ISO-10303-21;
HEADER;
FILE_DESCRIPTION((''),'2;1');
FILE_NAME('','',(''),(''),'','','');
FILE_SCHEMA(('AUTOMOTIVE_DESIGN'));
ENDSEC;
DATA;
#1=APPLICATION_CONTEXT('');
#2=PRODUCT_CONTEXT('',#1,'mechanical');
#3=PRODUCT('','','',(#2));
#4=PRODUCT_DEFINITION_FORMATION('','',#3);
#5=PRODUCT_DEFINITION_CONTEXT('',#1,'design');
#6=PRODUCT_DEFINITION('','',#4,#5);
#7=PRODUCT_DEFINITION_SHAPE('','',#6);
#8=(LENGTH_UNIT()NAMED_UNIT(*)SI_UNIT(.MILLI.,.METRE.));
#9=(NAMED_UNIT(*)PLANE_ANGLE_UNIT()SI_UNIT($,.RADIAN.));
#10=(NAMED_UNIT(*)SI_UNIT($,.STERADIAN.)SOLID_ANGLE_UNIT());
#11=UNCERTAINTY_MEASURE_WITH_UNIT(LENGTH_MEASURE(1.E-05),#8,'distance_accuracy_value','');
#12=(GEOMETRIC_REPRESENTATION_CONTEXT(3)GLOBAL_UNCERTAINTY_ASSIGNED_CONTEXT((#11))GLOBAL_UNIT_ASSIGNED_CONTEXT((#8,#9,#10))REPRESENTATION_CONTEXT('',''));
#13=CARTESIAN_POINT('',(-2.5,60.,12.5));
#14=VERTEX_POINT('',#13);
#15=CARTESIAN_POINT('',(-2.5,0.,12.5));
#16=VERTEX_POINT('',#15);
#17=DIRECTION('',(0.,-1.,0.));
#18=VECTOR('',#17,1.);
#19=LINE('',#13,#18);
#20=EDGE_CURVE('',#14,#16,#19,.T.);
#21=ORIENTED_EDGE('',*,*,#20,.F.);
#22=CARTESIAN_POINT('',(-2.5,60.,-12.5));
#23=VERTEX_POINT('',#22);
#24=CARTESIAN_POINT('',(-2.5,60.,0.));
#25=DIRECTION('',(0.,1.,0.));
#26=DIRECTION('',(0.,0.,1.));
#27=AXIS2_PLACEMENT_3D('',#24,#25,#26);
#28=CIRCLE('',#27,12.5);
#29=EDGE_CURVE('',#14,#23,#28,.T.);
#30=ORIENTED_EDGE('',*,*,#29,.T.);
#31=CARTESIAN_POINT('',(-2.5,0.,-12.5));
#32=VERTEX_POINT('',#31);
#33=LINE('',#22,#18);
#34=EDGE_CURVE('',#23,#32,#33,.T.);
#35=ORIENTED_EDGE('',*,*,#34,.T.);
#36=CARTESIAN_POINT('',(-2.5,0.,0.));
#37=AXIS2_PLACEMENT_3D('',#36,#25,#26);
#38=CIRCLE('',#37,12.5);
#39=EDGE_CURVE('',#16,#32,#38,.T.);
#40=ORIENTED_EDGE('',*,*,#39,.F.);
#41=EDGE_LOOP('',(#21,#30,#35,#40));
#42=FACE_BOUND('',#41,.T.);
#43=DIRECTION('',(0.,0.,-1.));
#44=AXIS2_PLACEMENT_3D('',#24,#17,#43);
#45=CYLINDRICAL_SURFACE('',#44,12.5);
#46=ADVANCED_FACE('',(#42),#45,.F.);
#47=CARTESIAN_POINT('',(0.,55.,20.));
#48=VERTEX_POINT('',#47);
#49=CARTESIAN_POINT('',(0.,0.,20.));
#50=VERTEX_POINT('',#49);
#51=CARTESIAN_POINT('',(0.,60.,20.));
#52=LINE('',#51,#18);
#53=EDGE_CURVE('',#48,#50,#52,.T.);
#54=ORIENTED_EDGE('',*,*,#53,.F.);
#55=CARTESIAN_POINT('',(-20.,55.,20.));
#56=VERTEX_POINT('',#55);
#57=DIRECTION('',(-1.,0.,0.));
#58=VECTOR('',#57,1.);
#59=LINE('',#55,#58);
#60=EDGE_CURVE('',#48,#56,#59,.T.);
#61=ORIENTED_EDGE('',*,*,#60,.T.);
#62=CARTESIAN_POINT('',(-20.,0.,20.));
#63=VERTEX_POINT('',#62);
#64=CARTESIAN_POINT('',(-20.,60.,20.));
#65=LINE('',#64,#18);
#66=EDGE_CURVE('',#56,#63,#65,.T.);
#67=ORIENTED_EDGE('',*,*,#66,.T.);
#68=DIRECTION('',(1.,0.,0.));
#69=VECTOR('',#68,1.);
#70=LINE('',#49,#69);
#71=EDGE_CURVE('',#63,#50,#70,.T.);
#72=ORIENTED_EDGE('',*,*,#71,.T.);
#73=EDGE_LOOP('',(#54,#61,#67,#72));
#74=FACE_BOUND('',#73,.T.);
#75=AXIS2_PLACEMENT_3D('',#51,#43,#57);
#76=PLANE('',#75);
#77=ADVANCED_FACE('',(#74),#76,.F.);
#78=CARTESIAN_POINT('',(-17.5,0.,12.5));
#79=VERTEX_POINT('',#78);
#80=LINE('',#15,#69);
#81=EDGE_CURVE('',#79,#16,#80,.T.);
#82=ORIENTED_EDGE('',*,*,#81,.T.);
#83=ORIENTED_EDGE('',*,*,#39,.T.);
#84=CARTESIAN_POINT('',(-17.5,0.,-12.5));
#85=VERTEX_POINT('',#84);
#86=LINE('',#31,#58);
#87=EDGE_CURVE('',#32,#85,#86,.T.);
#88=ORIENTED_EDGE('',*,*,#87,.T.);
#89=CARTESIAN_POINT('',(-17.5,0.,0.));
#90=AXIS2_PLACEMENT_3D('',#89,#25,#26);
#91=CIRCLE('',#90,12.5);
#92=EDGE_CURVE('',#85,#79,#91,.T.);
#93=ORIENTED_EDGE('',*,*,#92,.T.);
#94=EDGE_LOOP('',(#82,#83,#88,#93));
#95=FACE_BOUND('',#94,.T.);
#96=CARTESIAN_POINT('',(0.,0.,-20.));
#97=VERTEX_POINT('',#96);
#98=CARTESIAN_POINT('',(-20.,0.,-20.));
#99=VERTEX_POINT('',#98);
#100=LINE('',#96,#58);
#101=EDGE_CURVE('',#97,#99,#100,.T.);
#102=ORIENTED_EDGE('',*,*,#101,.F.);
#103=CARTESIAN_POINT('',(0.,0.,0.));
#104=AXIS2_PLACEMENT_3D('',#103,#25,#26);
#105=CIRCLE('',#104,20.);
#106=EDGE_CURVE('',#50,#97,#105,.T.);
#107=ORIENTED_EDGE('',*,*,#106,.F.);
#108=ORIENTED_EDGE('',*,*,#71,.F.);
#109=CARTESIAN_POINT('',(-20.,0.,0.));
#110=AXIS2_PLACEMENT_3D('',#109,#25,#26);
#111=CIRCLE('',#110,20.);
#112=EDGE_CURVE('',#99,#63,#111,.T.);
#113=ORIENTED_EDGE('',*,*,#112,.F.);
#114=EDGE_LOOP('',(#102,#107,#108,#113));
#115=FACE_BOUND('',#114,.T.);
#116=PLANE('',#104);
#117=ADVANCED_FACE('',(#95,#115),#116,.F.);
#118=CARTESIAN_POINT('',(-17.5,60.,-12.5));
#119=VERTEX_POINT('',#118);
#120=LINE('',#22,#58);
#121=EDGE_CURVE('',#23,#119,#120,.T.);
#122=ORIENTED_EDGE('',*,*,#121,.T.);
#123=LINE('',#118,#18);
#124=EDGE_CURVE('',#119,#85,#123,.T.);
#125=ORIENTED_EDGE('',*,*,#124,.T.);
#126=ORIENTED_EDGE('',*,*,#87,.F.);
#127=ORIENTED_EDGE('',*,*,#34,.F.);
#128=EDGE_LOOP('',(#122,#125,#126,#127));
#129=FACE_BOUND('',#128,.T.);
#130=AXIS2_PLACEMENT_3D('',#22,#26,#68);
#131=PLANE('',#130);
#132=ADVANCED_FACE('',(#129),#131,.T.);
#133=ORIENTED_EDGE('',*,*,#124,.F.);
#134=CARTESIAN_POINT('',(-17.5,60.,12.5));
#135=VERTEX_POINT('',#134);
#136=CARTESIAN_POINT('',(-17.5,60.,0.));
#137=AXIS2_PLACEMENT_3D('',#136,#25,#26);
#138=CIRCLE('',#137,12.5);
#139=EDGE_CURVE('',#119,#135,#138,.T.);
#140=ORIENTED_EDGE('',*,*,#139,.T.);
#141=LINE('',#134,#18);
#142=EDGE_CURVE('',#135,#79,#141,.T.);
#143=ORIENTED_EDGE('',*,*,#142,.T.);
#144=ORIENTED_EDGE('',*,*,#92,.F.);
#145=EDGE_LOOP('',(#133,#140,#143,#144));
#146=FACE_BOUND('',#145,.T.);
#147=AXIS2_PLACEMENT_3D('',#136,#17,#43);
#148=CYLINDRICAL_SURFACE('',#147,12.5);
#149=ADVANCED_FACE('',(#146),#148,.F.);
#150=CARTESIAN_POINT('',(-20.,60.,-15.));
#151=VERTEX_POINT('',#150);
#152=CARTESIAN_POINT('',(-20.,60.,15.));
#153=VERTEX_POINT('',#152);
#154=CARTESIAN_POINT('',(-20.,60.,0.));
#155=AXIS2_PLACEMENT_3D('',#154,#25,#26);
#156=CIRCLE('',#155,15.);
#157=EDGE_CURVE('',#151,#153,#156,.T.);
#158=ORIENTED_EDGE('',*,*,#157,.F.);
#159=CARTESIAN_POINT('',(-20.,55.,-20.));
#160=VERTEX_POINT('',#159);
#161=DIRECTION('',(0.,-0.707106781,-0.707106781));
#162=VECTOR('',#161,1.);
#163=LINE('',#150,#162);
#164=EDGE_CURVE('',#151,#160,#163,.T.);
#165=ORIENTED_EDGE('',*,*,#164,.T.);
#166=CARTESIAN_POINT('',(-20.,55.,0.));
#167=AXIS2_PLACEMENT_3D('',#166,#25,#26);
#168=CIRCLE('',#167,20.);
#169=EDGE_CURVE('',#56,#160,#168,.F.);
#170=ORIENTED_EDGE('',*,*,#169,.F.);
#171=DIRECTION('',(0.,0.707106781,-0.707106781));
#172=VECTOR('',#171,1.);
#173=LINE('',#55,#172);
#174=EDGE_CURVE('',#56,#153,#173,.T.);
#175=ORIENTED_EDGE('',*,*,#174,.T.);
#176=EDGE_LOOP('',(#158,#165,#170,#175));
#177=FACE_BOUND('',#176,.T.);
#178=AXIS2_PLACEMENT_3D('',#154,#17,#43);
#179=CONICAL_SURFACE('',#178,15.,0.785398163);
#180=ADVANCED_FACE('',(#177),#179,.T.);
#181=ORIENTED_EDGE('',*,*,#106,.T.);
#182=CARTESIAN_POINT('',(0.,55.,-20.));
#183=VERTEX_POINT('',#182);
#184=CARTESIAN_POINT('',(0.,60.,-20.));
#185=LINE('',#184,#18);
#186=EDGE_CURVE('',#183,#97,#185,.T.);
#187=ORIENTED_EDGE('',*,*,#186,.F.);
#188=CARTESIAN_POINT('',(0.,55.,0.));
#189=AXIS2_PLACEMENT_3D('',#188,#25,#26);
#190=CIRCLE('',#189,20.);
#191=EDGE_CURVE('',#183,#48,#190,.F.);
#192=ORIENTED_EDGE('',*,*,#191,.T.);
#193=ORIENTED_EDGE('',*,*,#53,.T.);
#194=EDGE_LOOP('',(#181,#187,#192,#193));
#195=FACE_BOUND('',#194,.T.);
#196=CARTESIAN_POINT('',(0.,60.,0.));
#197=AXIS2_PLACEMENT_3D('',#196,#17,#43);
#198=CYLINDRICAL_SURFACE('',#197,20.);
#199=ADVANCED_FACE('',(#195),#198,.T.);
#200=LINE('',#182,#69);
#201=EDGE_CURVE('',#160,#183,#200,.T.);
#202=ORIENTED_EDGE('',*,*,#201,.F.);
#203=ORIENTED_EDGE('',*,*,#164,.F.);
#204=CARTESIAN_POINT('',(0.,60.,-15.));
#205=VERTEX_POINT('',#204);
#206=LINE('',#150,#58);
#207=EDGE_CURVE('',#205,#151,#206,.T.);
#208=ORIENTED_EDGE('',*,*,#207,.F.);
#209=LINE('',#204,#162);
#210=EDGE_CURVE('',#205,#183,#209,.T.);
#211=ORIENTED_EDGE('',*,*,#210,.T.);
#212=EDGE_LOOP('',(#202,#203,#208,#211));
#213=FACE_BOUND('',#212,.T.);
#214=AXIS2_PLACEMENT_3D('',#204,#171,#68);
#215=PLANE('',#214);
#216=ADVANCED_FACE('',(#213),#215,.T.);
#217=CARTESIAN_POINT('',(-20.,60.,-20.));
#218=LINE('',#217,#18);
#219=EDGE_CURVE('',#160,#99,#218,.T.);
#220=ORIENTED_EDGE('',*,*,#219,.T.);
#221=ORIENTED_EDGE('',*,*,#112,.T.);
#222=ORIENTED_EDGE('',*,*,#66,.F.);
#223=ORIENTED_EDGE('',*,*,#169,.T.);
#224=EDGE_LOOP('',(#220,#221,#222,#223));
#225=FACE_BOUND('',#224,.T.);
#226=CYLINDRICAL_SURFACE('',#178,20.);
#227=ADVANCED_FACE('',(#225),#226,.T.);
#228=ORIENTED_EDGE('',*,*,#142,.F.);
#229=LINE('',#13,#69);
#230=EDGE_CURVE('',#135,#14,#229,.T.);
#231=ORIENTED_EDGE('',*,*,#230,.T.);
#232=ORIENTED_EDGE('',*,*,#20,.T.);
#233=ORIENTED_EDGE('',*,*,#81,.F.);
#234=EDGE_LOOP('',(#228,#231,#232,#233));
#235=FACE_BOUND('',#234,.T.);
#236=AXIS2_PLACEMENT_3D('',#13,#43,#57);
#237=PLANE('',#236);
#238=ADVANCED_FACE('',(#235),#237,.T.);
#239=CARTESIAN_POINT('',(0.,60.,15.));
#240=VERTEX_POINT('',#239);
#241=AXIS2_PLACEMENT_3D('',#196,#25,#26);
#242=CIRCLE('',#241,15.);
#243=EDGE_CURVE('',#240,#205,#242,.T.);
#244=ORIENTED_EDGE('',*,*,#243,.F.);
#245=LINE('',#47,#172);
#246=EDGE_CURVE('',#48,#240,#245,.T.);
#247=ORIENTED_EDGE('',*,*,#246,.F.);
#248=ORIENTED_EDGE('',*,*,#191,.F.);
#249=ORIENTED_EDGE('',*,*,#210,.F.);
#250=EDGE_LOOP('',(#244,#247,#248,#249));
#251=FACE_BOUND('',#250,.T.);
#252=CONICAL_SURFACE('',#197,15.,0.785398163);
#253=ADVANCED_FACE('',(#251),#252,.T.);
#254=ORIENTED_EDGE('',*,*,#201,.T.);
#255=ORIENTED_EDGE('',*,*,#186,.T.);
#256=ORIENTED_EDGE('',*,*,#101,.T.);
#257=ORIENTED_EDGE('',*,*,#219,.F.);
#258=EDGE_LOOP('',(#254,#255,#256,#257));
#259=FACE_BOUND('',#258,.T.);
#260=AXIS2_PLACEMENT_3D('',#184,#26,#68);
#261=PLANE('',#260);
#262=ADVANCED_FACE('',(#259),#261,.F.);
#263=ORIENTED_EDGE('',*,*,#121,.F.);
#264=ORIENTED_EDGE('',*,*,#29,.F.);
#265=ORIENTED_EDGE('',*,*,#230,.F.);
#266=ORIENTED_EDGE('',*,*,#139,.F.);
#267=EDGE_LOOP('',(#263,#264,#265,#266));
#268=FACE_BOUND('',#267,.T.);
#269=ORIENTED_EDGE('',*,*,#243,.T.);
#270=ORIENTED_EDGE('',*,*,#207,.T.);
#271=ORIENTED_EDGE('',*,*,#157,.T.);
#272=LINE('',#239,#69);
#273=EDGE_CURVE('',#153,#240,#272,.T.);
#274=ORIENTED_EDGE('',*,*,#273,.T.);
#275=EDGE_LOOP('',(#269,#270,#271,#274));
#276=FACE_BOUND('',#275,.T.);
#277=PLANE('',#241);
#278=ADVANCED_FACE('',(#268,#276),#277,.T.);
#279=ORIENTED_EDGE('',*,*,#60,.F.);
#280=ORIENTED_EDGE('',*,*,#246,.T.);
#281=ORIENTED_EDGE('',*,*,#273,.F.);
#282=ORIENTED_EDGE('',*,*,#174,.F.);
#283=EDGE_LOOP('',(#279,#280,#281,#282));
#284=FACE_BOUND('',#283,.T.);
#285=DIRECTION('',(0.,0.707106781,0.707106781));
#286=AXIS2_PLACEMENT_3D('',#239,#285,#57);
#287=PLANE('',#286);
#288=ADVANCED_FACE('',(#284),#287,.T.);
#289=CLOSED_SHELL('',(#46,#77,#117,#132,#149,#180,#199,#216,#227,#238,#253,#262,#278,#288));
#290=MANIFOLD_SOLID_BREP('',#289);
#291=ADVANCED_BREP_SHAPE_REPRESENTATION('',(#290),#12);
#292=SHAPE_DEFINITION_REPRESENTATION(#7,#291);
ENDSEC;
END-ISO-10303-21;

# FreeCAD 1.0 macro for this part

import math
import FreeCAD as App
import Part
import Sketcher


def edges_at(feature, points):
    """Names of the edges that pass closest to the given points."""
    edges = feature.Shape.Edges
    near = lambda p: min(range(len(edges)), key=lambda i: edges[i].distToShape(Part.Vertex(*p))[0])
    return sorted({f"Edge{near(p) + 1}" for p in points})

doc = App.newDocument("Part")
body = doc.addObject("PartDesign::Body", "Body")

# Sketch on XZ plane
sketch1 = body.newObject("Sketcher::SketchObject", "Sketch")
sketch1.AttachmentSupport = (doc.getObject("XZ_Plane"), [""])
sketch1.MapMode = "FlatFace"
sketch1.addGeometry(Part.LineSegment(App.Vector(-20, 20, 0), App.Vector(0, 20, 0)), False)
sketch1.addGeometry(Part.ArcOfCircle(Part.Circle(App.Vector(0, 0, 0), App.Vector(0, 0, 1), 20), math.radians(-90), math.radians(90)), False)
sketch1.addGeometry(Part.LineSegment(App.Vector(0, -20, 0), App.Vector(-20, -20, 0)), False)
sketch1.addGeometry(Part.ArcOfCircle(Part.Circle(App.Vector(-20, 0, 0), App.Vector(0, 0, 1), 20), math.radians(90), math.radians(270)), False)
sketch1.addGeometry(Part.LineSegment(App.Vector(-2, 12, 0), App.Vector(-18, 12, 0)), False)
sketch1.addGeometry(Part.ArcOfCircle(Part.Circle(App.Vector(-18, 0, 0), App.Vector(0, 0, 1), 12), math.radians(90), math.radians(270)), False)
sketch1.addGeometry(Part.LineSegment(App.Vector(-18, -12, 0), App.Vector(-2, -12, 0)), False)
sketch1.addGeometry(Part.ArcOfCircle(Part.Circle(App.Vector(-2, 0, 0), App.Vector(0, 0, 1), 12), math.radians(-90), math.radians(90)), False)
sketch1.addConstraint(Sketcher.Constraint("Tangent", 0, 2, 1, 2))
sketch1.addConstraint(Sketcher.Constraint("Tangent", 1, 1, 2, 1))
sketch1.addConstraint(Sketcher.Constraint("Tangent", 2, 2, 3, 2))
sketch1.addConstraint(Sketcher.Constraint("Tangent", 3, 1, 0, 1))
sketch1.addConstraint(Sketcher.Constraint("Tangent", 4, 2, 5, 1))
sketch1.addConstraint(Sketcher.Constraint("Tangent", 5, 2, 6, 1))
sketch1.addConstraint(Sketcher.Constraint("Tangent", 6, 2, 7, 1))
sketch1.addConstraint(Sketcher.Constraint("Tangent", 7, 2, 4, 1))
sketch1.addConstraint(Sketcher.Constraint("Horizontal", 0))
sketch1.addConstraint(Sketcher.Constraint("Horizontal", 2))
sketch1.addConstraint(Sketcher.Constraint("Horizontal", 4))
sketch1.addConstraint(Sketcher.Constraint("Horizontal", 6))
sketch1.addConstraint(Sketcher.Constraint("Coincident", 1, 3, -1, 1))
sketch1.addConstraint(Sketcher.Constraint("PointOnObject", 5, 3, -1))
sketch1.addConstraint(Sketcher.Constraint("Radius", 1, 20.0))
sketch1.addConstraint(Sketcher.Constraint("Radius", 5, 12.5))
sketch1.addConstraint(Sketcher.Constraint("DistanceX", 0, 1, 0, 2, 20.0))
sketch1.addConstraint(Sketcher.Constraint("DistanceX", 4, 2, 4, 1, 15.0))
sketch1.addConstraint(Sketcher.Constraint("DistanceX", 5, 3, -1, 1, 17.5))
pad1 = body.newObject("PartDesign::Pad", "Pad")
pad1.Profile = sketch1
pad1.Length = 60
pad1.Reversed = True
doc.recompute()

chamfer = body.newObject("PartDesign::Chamfer", "Chamfer")
chamfer.Base = (pad1, edges_at(pad1, [
    (-40, 60, 0),
    (-10, 60, 20),
    (20, 60, 0),
    (-10, 60, -20),
]))
chamfer.Size = 5

doc.recompute()
